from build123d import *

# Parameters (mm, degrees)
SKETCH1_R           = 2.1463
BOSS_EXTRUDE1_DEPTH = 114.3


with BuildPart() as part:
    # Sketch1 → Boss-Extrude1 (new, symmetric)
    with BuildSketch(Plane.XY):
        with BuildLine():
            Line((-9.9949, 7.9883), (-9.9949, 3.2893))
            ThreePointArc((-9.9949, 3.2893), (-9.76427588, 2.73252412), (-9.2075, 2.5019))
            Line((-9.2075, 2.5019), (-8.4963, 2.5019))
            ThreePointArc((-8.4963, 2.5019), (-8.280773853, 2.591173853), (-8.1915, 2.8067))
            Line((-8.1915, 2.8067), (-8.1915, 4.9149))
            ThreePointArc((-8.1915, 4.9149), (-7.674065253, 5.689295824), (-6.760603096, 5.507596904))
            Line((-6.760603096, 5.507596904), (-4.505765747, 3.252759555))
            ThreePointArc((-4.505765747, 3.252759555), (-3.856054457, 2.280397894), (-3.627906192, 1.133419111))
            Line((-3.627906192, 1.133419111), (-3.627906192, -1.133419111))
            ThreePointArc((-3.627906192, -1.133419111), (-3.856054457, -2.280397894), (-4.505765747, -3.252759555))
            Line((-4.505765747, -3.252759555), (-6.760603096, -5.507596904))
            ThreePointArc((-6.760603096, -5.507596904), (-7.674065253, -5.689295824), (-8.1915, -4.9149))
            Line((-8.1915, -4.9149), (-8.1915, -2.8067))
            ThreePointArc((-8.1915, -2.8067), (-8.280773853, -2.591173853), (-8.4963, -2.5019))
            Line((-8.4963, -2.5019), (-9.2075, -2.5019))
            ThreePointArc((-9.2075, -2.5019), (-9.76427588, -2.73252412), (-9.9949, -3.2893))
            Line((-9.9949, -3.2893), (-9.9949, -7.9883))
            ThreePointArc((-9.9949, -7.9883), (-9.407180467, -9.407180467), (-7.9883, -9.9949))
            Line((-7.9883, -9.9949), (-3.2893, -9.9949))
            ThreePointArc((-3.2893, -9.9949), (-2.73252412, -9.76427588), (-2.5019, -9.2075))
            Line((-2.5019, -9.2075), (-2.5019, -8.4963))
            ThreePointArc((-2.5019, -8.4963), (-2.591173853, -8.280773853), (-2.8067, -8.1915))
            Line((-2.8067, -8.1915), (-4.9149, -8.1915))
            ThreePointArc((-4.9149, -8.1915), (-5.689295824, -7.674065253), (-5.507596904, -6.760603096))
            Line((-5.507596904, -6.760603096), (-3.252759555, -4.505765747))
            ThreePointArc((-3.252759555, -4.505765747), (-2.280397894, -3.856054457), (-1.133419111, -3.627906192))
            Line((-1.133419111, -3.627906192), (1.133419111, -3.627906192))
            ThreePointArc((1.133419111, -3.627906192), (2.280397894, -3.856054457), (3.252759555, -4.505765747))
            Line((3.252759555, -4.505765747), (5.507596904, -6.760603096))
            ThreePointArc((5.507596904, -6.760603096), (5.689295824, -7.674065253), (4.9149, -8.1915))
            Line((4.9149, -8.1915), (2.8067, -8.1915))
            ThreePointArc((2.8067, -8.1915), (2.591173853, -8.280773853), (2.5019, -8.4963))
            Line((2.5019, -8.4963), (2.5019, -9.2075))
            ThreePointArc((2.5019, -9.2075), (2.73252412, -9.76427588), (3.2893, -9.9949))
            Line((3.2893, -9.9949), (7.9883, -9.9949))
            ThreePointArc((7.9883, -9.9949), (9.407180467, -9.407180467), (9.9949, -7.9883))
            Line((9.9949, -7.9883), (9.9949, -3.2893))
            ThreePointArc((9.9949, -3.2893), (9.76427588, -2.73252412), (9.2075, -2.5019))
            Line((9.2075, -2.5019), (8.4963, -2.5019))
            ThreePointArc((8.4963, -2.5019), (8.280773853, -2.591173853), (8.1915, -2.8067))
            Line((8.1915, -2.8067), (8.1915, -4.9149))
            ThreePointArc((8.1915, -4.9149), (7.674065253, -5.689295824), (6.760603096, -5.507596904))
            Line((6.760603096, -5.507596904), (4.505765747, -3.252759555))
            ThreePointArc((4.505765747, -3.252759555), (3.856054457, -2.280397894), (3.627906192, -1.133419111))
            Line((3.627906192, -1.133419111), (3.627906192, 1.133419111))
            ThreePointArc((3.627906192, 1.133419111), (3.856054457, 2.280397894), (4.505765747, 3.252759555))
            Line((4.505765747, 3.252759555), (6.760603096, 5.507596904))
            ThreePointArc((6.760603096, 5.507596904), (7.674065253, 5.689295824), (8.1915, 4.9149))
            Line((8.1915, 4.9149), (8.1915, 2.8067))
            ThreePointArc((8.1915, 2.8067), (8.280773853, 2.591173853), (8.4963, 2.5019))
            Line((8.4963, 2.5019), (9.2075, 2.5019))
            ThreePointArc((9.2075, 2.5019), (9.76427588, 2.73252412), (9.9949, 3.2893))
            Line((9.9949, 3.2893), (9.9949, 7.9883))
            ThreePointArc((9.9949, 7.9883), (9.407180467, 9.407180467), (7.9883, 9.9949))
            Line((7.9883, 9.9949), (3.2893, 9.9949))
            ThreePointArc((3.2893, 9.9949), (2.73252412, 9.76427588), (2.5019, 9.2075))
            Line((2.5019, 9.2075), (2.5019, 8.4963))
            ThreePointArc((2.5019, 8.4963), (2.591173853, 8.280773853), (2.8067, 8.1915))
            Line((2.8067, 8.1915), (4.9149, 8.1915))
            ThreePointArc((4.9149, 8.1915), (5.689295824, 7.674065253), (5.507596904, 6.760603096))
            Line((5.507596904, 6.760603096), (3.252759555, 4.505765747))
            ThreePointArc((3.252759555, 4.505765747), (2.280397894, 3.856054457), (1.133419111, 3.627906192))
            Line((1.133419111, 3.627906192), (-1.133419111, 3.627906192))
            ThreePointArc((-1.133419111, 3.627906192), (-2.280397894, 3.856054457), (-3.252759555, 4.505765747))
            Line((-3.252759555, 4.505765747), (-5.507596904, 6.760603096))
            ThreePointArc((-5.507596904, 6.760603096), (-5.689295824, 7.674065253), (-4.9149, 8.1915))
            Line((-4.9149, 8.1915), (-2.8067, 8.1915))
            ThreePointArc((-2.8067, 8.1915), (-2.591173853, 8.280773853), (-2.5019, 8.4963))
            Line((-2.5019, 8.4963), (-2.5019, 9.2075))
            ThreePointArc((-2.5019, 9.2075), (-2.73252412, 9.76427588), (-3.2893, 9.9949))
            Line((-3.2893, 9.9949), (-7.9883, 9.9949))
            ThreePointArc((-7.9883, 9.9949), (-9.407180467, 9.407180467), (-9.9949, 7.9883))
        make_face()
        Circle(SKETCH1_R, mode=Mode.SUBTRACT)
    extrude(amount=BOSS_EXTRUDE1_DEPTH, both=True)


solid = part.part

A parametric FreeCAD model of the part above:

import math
import FreeCAD as App
import Part
import Sketcher

V = App.Vector
Q = App.Units.Quantity

doc = App.newDocument("Part")
body = doc.addObject("PartDesign::Body", "Body")

sketch1 = doc.addObject("Sketcher::SketchObject", "Sketch")
body.addObject(sketch1)
sketch1.AttachmentSupport = (doc.XY_Plane, [""])
sketch1.MapMode = "FlatFace"
sketch1.addGeometry([
    Part.LineSegment(V(-9.99, 7.99, 0), V(-9.99, 3.29, 0)),
    Part.ArcOfCircle(Part.Circle(V(-9.21, 3.29, 0), V(0, 0, 1), 0.79), math.radians(180), math.radians(270)),
    Part.LineSegment(V(-9.21, 2.5, 0), V(-8.5, 2.5, 0)),
    Part.ArcOfCircle(Part.Circle(V(-8.5, 2.81, 0), V(0, 0, 1), 0.3), math.radians(-90), math.radians(0)),
    Part.LineSegment(V(-8.19, 2.81, 0), V(-8.19, 4.91, 0)),
    Part.ArcOfCircle(Part.Circle(V(-7.35, 4.91, 0), V(0, 0, 1), 0.84), math.radians(45), math.radians(180)),
    Part.LineSegment(V(-6.76, 5.51, 0), V(-4.51, 3.25, 0)),
    Part.ArcOfCircle(Part.Circle(V(-6.63, 1.13, 0), V(0, 0, 1), 3), math.radians(0), math.radians(45)),
    Part.LineSegment(V(-3.63, 1.13, 0), V(-3.63, -1.13, 0)),
    Part.ArcOfCircle(Part.Circle(V(-6.63, -1.13, 0), V(0, 0, 1), 3), math.radians(-45), math.radians(0)),
    Part.LineSegment(V(-4.51, -3.25, 0), V(-6.76, -5.51, 0)),
    Part.ArcOfCircle(Part.Circle(V(-7.35, -4.91, 0), V(0, 0, 1), 0.84), math.radians(180), math.radians(315)),
    Part.LineSegment(V(-8.19, -4.91, 0), V(-8.19, -2.81, 0)),
    Part.ArcOfCircle(Part.Circle(V(-8.5, -2.81, 0), V(0, 0, 1), 0.3), math.radians(0), math.radians(90)),
    Part.LineSegment(V(-8.5, -2.5, 0), V(-9.21, -2.5, 0)),
    Part.ArcOfCircle(Part.Circle(V(-9.21, -3.29, 0), V(0, 0, 1), 0.79), math.radians(90), math.radians(180)),
    Part.LineSegment(V(-9.99, -3.29, 0), V(-9.99, -7.99, 0)),
    Part.ArcOfCircle(Part.Circle(V(-7.99, -7.99, 0), V(0, 0, 1), 2.01), math.radians(180), math.radians(270)),
    Part.LineSegment(V(-7.99, -9.99, 0), V(-3.29, -9.99, 0)),
    Part.ArcOfCircle(Part.Circle(V(-3.29, -9.21, 0), V(0, 0, 1), 0.79), math.radians(-90), math.radians(0)),
    Part.LineSegment(V(-2.5, -9.21, 0), V(-2.5, -8.5, 0)),
    Part.ArcOfCircle(Part.Circle(V(-2.81, -8.5, 0), V(0, 0, 1), 0.3), math.radians(0), math.radians(90)),
    Part.LineSegment(V(-2.81, -8.19, 0), V(-4.91, -8.19, 0)),
    Part.ArcOfCircle(Part.Circle(V(-4.91, -7.35, 0), V(0, 0, 1), 0.84), math.radians(135), math.radians(270)),
    Part.LineSegment(V(-5.51, -6.76, 0), V(-3.25, -4.51, 0)),
    Part.ArcOfCircle(Part.Circle(V(-1.13, -6.63, 0), V(0, 0, 1), 3), math.radians(90), math.radians(135)),
    Part.LineSegment(V(-1.13, -3.63, 0), V(1.13, -3.63, 0)),
    Part.ArcOfCircle(Part.Circle(V(1.13, -6.63, 0), V(0, 0, 1), 3), math.radians(45), math.radians(90)),
    Part.LineSegment(V(3.25, -4.51, 0), V(5.51, -6.76, 0)),
    Part.ArcOfCircle(Part.Circle(V(4.91, -7.35, 0), V(0, 0, 1), 0.84), math.radians(-90), math.radians(45)),
    Part.LineSegment(V(4.91, -8.19, 0), V(2.81, -8.19, 0)),
    Part.ArcOfCircle(Part.Circle(V(2.81, -8.5, 0), V(0, 0, 1), 0.3), math.radians(90), math.radians(180)),
    Part.LineSegment(V(2.5, -8.5, 0), V(2.5, -9.21, 0)),
    Part.ArcOfCircle(Part.Circle(V(3.29, -9.21, 0), V(0, 0, 1), 0.79), math.radians(180), math.radians(270)),
    Part.LineSegment(V(3.29, -9.99, 0), V(7.99, -9.99, 0)),
    Part.ArcOfCircle(Part.Circle(V(7.99, -7.99, 0), V(0, 0, 1), 2.01), math.radians(-90), math.radians(0)),
    Part.LineSegment(V(9.99, -7.99, 0), V(9.99, -3.29, 0)),
    Part.ArcOfCircle(Part.Circle(V(9.21, -3.29, 0), V(0, 0, 1), 0.79), math.radians(0), math.radians(90)),
    Part.LineSegment(V(9.21, -2.5, 0), V(8.5, -2.5, 0)),
    Part.ArcOfCircle(Part.Circle(V(8.5, -2.81, 0), V(0, 0, 1), 0.3), math.radians(90), math.radians(180)),
    Part.LineSegment(V(8.19, -2.81, 0), V(8.19, -4.91, 0)),
    Part.ArcOfCircle(Part.Circle(V(7.35, -4.91, 0), V(0, 0, 1), 0.84), math.radians(-135), math.radians(0)),
    Part.LineSegment(V(6.76, -5.51, 0), V(4.51, -3.25, 0)),
    Part.ArcOfCircle(Part.Circle(V(6.63, -1.13, 0), V(0, 0, 1), 3), math.radians(180), math.radians(225)),
    Part.LineSegment(V(3.63, -1.13, 0), V(3.63, 1.13, 0)),
    Part.ArcOfCircle(Part.Circle(V(6.63, 1.13, 0), V(0, 0, 1), 3), math.radians(135), math.radians(180)),
    Part.LineSegment(V(4.51, 3.25, 0), V(6.76, 5.51, 0)),
    Part.ArcOfCircle(Part.Circle(V(7.35, 4.91, 0), V(0, 0, 1), 0.84), math.radians(0), math.radians(135)),
    Part.LineSegment(V(8.19, 4.91, 0), V(8.19, 2.81, 0)),
    Part.ArcOfCircle(Part.Circle(V(8.5, 2.81, 0), V(0, 0, 1), 0.3), math.radians(180), math.radians(270)),
    Part.LineSegment(V(8.5, 2.5, 0), V(9.21, 2.5, 0)),
    Part.ArcOfCircle(Part.Circle(V(9.21, 3.29, 0), V(0, 0, 1), 0.79), math.radians(-90), math.radians(0)),
    Part.LineSegment(V(9.99, 3.29, 0), V(9.99, 7.99, 0)),
    Part.ArcOfCircle(Part.Circle(V(7.99, 7.99, 0), V(0, 0, 1), 2.01), math.radians(0), math.radians(90)),
    Part.LineSegment(V(7.99, 9.99, 0), V(3.29, 9.99, 0)),
    Part.ArcOfCircle(Part.Circle(V(3.29, 9.21, 0), V(0, 0, 1), 0.79), math.radians(90), math.radians(180)),
    Part.LineSegment(V(2.5, 9.21, 0), V(2.5, 8.5, 0)),
    Part.ArcOfCircle(Part.Circle(V(2.81, 8.5, 0), V(0, 0, 1), 0.3), math.radians(180), math.radians(270)),
    Part.LineSegment(V(2.81, 8.19, 0), V(4.91, 8.19, 0)),
    Part.ArcOfCircle(Part.Circle(V(4.91, 7.35, 0), V(0, 0, 1), 0.84), math.radians(-45), math.radians(90)),
    Part.LineSegment(V(5.51, 6.76, 0), V(3.25, 4.51, 0)),
    Part.ArcOfCircle(Part.Circle(V(1.13, 6.63, 0), V(0, 0, 1), 3), math.radians(-90), math.radians(-45)),
    Part.LineSegment(V(1.13, 3.63, 0), V(-1.13, 3.63, 0)),
    Part.ArcOfCircle(Part.Circle(V(-1.13, 6.63, 0), V(0, 0, 1), 3), math.radians(-135), math.radians(-90)),
    Part.LineSegment(V(-3.25, 4.51, 0), V(-5.51, 6.76, 0)),
    Part.ArcOfCircle(Part.Circle(V(-4.91, 7.35, 0), V(0, 0, 1), 0.84), math.radians(90), math.radians(225)),
    Part.LineSegment(V(-4.91, 8.19, 0), V(-2.81, 8.19, 0)),
    Part.ArcOfCircle(Part.Circle(V(-2.81, 8.5, 0), V(0, 0, 1), 0.3), math.radians(-90), math.radians(0)),
    Part.LineSegment(V(-2.5, 8.5, 0), V(-2.5, 9.21, 0)),
    Part.ArcOfCircle(Part.Circle(V(-3.29, 9.21, 0), V(0, 0, 1), 0.79), math.radians(0), math.radians(90)),
    Part.LineSegment(V(-3.29, 9.99, 0), V(-7.99, 9.99, 0)),
    Part.ArcOfCircle(Part.Circle(V(-7.99, 7.99, 0), V(0, 0, 1), 2.01), math.radians(90), math.radians(180)),
    Part.Circle(V(0, 0, 0), V(0, 0, 1), 2.15),
], False)
sketch1.addConstraint([
    Sketcher.Constraint("Tangent", 0, 2, 1, 1),
    Sketcher.Constraint("Tangent", 1, 2, 2, 1),
    Sketcher.Constraint("Tangent", 2, 2, 3, 1),
    Sketcher.Constraint("Tangent", 3, 2, 4, 1),
    Sketcher.Constraint("Tangent", 4, 2, 5, 2),
    Sketcher.Constraint("Tangent", 5, 1, 6, 1),
    Sketcher.Constraint("Tangent", 6, 2, 7, 2),
    Sketcher.Constraint("Tangent", 7, 1, 8, 1),
    Sketcher.Constraint("Tangent", 8, 2, 9, 2),
    Sketcher.Constraint("Tangent", 9, 1, 10, 1),
    Sketcher.Constraint("Tangent", 10, 2, 11, 2),
    Sketcher.Constraint("Tangent", 11, 1, 12, 1),
    Sketcher.Constraint("Tangent", 12, 2, 13, 1),
    Sketcher.Constraint("Tangent", 13, 2, 14, 1),
    Sketcher.Constraint("Tangent", 14, 2, 15, 1),
    Sketcher.Constraint("Tangent", 15, 2, 16, 1),
    Sketcher.Constraint("Tangent", 16, 2, 17, 1),
    Sketcher.Constraint("Tangent", 17, 2, 18, 1),
    Sketcher.Constraint("Tangent", 18, 2, 19, 1),
    Sketcher.Constraint("Tangent", 19, 2, 20, 1),
    Sketcher.Constraint("Tangent", 20, 2, 21, 1),
    Sketcher.Constraint("Tangent", 21, 2, 22, 1),
    Sketcher.Constraint("Tangent", 22, 2, 23, 2),
    Sketcher.Constraint("Tangent", 23, 1, 24, 1),
    Sketcher.Constraint("Tangent", 24, 2, 25, 2),
    Sketcher.Constraint("Tangent", 25, 1, 26, 1),
    Sketcher.Constraint("Tangent", 26, 2, 27, 2),
    Sketcher.Constraint("Tangent", 27, 1, 28, 1),
    Sketcher.Constraint("Tangent", 28, 2, 29, 2),
    Sketcher.Constraint("Tangent", 29, 1, 30, 1),
    Sketcher.Constraint("Tangent", 30, 2, 31, 1),
    Sketcher.Constraint("Tangent", 31, 2, 32, 1),
    Sketcher.Constraint("Tangent", 32, 2, 33, 1),
    Sketcher.Constraint("Tangent", 33, 2, 34, 1),
    Sketcher.Constraint("Tangent", 34, 2, 35, 1),
    Sketcher.Constraint("Tangent", 35, 2, 36, 1),
    Sketcher.Constraint("Tangent", 36, 2, 37, 1),
    Sketcher.Constraint("Tangent", 37, 2, 38, 1),
    Sketcher.Constraint("Tangent", 38, 2, 39, 1),
    Sketcher.Constraint("Tangent", 39, 2, 40, 1),
    Sketcher.Constraint("Tangent", 40, 2, 41, 2),
    Sketcher.Constraint("Tangent", 41, 1, 42, 1),
    Sketcher.Constraint("Tangent", 42, 2, 43, 2),
    Sketcher.Constraint("Tangent", 43, 1, 44, 1),
    Sketcher.Constraint("Tangent", 44, 2, 45, 2),
    Sketcher.Constraint("Tangent", 45, 1, 46, 1),
    Sketcher.Constraint("Tangent", 46, 2, 47, 2),
    Sketcher.Constraint("Tangent", 47, 1, 48, 1),
    Sketcher.Constraint("Tangent", 48, 2, 49, 1),
    Sketcher.Constraint("Tangent", 49, 2, 50, 1),
    Sketcher.Constraint("Tangent", 50, 2, 51, 1),
    Sketcher.Constraint("Tangent", 51, 2, 52, 1),
    Sketcher.Constraint("Tangent", 52, 2, 53, 1),
    Sketcher.Constraint("Tangent", 53, 2, 54, 1),
    Sketcher.Constraint("Tangent", 54, 2, 55, 1),
    Sketcher.Constraint("Tangent", 55, 2, 56, 1),
    Sketcher.Constraint("Tangent", 56, 2, 57, 1),
    Sketcher.Constraint("Tangent", 57, 2, 58, 1),
    Sketcher.Constraint("Tangent", 58, 2, 59, 2),
    Sketcher.Constraint("Tangent", 59, 1, 60, 1),
    Sketcher.Constraint("Tangent", 60, 2, 61, 2),
    Sketcher.Constraint("Tangent", 61, 1, 62, 1),
    Sketcher.Constraint("Tangent", 62, 2, 63, 2),
    Sketcher.Constraint("Tangent", 63, 1, 64, 1),
    Sketcher.Constraint("Tangent", 64, 2, 65, 2),
    Sketcher.Constraint("Tangent", 65, 1, 66, 1),
    Sketcher.Constraint("Tangent", 66, 2, 67, 1),
    Sketcher.Constraint("Tangent", 67, 2, 68, 1),
    Sketcher.Constraint("Tangent", 68, 2, 69, 1),
    Sketcher.Constraint("Tangent", 69, 2, 70, 1),
    Sketcher.Constraint("Tangent", 70, 2, 71, 1),
    Sketcher.Constraint("Tangent", 71, 2, 0, 1),
    Sketcher.Constraint("Vertical", 0),
    Sketcher.Constraint("Horizontal", 2),
    Sketcher.Constraint("Vertical", 4),
    Sketcher.Constraint("Vertical", 8),
    Sketcher.Constraint("Vertical", 12),
    Sketcher.Constraint("Horizontal", 14),
    Sketcher.Constraint("Vertical", 16),
    Sketcher.Constraint("Horizontal", 18),
    Sketcher.Constraint("Vertical", 20),
    Sketcher.Constraint("Horizontal", 22),
    Sketcher.Constraint("Horizontal", 26),
    Sketcher.Constraint("Horizontal", 30),
    Sketcher.Constraint("Vertical", 32),
    Sketcher.Constraint("Horizontal", 34),
    Sketcher.Constraint("Vertical", 36),
    Sketcher.Constraint("Horizontal", 38),
    Sketcher.Constraint("Vertical", 40),
    Sketcher.Constraint("Vertical", 44),
    Sketcher.Constraint("Vertical", 48),
    Sketcher.Constraint("Horizontal", 50),
    Sketcher.Constraint("Vertical", 52),
    Sketcher.Constraint("Horizontal", 54),
    Sketcher.Constraint("Vertical", 56),
    Sketcher.Constraint("Horizontal", 58),
    Sketcher.Constraint("Horizontal", 62),
    Sketcher.Constraint("Horizontal", 66),
    Sketcher.Constraint("Vertical", 68),
    Sketcher.Constraint("Horizontal", 70),
    Sketcher.Constraint("Coincident", 72, 3, -1, 1),
    Sketcher.Constraint("Equal", 7, 9),
    Sketcher.Constraint("Equal", 5, 11),
    Sketcher.Constraint("Equal", 3, 13),
    Sketcher.Constraint("Equal", 1, 15),
    Sketcher.Constraint("Equal", 15, 19),
    Sketcher.Constraint("Equal", 13, 21),
    Sketcher.Constraint("Equal", 11, 23),
    Sketcher.Constraint("Equal", 9, 25),
    Sketcher.Constraint("Equal", 25, 27),
    Sketcher.Constraint("Equal", 23, 29),
    Sketcher.Constraint("Equal", 21, 31),
    Sketcher.Constraint("Equal", 19, 33),
    Sketcher.Constraint("Equal", 17, 35),
    Sketcher.Constraint("Equal", 33, 37),
    Sketcher.Constraint("Equal", 31, 39),
    Sketcher.Constraint("Equal", 29, 41),
    Sketcher.Constraint("Equal", 27, 43),
    Sketcher.Constraint("Equal", 43, 45),
    Sketcher.Constraint("Equal", 41, 47),
    Sketcher.Constraint("Equal", 39, 49),
    Sketcher.Constraint("Equal", 37, 51),
    Sketcher.Constraint("Equal", 35, 53),
    Sketcher.Constraint("Equal", 51, 55),
    Sketcher.Constraint("Equal", 49, 57),
    Sketcher.Constraint("Equal", 47, 59),
    Sketcher.Constraint("Equal", 45, 61),
    Sketcher.Constraint("Equal", 61, 63),
    Sketcher.Constraint("Equal", 59, 65),
    Sketcher.Constraint("Equal", 57, 67),
    Sketcher.Constraint("Equal", 55, 69),
    Sketcher.Constraint("Equal", 53, 71),
    Sketcher.Constraint("Symmetric", 1, 3, 37, 3, -1, 1),
    Sketcher.Constraint("Symmetric", 5, 3, 41, 3, -1, 1),
    Sketcher.Constraint("Symmetric", 7, 3, 43, 3, -1, 1),
    Sketcher.Constraint("Symmetric", 11, 3, 47, 3, -1, 1),
    Sketcher.Constraint("Symmetric", 15, 3, 51, 3, -1, 1),
    Sketcher.Constraint("Symmetric", 19, 3, 55, 3, -1, 1),
    Sketcher.Constraint("Symmetric", 23, 3, 59, 3, -1, 1),
    Sketcher.Constraint("Symmetric", 25, 3, 61, 3, -1, 1),
    Sketcher.Constraint("Symmetric", 29, 3, 65, 3, -1, 1),
    Sketcher.Constraint("Symmetric", 33, 3, 69, 3, -1, 1),
    Sketcher.Constraint("Symmetric", 23, 3, 29, 3, -2),
    Sketcher.Constraint("Symmetric", 19, 3, 33, 3, -2),
    Sketcher.Constraint("Symmetric", 15, 3, 37, 3, -2),
    Sketcher.Constraint("Symmetric", 11, 3, 41, 3, -2),
    Sketcher.Constraint("Perpendicular", 6, 10),
    Sketcher.Constraint("Parallel", 10, 24),
    Sketcher.Constraint("Perpendicular", 24, 28),
    Sketcher.Constraint("Perpendicular", 42, 46),
    Sketcher.Constraint("Perpendicular", 60, 64),
    Sketcher.Constraint("Horizontal", 9, 3, 43, 3),
    Sketcher.Constraint("Equal", 70, 0),
    Sketcher.Constraint("Equal", 66, 4),
    Sketcher.Constraint("Equal", 62, 8),
    Sketcher.Constraint("Equal", 50, 20),
    Sketcher.Constraint("Equal", 10, 24),
    Sketcher.Constraint("Diameter", 72, Q("0.169 in")),
    Sketcher.Constraint("Radius", 1, Q("0.031 in")),
    Sketcher.Constraint("Radius", 3, Q("0.012 in")),
    Sketcher.Constraint("Radius", 5, Q("0.033 in")),
    Sketcher.Constraint("Radius", 7, Q("0.118 in")),
    Sketcher.Constraint("Radius", 17, Q("0.079 in")),
    Sketcher.Constraint("DistanceX", 2, 1, 2, 2, Q("0.028 in")),
    Sketcher.Constraint("DistanceX", 18, 1, 18, 2, Q("0.185 in")),
    Sketcher.Constraint("DistanceX", 22, 2, 22, 1, Q("0.083 in")),
    Sketcher.Constraint("DistanceX", 1, 3, -1, 1, Q("0.3625 in")),
    Sketcher.Constraint("DistanceX", 26, 1, 26, 2, Q("2.266838 mm")),
])
pad1 = doc.addObject("PartDesign::Pad", "Pad")
body.addObject(pad1)
pad1.Profile = sketch1
pad1.Length = Q("9 in")
pad1.Midplane = True

doc.recompute()
